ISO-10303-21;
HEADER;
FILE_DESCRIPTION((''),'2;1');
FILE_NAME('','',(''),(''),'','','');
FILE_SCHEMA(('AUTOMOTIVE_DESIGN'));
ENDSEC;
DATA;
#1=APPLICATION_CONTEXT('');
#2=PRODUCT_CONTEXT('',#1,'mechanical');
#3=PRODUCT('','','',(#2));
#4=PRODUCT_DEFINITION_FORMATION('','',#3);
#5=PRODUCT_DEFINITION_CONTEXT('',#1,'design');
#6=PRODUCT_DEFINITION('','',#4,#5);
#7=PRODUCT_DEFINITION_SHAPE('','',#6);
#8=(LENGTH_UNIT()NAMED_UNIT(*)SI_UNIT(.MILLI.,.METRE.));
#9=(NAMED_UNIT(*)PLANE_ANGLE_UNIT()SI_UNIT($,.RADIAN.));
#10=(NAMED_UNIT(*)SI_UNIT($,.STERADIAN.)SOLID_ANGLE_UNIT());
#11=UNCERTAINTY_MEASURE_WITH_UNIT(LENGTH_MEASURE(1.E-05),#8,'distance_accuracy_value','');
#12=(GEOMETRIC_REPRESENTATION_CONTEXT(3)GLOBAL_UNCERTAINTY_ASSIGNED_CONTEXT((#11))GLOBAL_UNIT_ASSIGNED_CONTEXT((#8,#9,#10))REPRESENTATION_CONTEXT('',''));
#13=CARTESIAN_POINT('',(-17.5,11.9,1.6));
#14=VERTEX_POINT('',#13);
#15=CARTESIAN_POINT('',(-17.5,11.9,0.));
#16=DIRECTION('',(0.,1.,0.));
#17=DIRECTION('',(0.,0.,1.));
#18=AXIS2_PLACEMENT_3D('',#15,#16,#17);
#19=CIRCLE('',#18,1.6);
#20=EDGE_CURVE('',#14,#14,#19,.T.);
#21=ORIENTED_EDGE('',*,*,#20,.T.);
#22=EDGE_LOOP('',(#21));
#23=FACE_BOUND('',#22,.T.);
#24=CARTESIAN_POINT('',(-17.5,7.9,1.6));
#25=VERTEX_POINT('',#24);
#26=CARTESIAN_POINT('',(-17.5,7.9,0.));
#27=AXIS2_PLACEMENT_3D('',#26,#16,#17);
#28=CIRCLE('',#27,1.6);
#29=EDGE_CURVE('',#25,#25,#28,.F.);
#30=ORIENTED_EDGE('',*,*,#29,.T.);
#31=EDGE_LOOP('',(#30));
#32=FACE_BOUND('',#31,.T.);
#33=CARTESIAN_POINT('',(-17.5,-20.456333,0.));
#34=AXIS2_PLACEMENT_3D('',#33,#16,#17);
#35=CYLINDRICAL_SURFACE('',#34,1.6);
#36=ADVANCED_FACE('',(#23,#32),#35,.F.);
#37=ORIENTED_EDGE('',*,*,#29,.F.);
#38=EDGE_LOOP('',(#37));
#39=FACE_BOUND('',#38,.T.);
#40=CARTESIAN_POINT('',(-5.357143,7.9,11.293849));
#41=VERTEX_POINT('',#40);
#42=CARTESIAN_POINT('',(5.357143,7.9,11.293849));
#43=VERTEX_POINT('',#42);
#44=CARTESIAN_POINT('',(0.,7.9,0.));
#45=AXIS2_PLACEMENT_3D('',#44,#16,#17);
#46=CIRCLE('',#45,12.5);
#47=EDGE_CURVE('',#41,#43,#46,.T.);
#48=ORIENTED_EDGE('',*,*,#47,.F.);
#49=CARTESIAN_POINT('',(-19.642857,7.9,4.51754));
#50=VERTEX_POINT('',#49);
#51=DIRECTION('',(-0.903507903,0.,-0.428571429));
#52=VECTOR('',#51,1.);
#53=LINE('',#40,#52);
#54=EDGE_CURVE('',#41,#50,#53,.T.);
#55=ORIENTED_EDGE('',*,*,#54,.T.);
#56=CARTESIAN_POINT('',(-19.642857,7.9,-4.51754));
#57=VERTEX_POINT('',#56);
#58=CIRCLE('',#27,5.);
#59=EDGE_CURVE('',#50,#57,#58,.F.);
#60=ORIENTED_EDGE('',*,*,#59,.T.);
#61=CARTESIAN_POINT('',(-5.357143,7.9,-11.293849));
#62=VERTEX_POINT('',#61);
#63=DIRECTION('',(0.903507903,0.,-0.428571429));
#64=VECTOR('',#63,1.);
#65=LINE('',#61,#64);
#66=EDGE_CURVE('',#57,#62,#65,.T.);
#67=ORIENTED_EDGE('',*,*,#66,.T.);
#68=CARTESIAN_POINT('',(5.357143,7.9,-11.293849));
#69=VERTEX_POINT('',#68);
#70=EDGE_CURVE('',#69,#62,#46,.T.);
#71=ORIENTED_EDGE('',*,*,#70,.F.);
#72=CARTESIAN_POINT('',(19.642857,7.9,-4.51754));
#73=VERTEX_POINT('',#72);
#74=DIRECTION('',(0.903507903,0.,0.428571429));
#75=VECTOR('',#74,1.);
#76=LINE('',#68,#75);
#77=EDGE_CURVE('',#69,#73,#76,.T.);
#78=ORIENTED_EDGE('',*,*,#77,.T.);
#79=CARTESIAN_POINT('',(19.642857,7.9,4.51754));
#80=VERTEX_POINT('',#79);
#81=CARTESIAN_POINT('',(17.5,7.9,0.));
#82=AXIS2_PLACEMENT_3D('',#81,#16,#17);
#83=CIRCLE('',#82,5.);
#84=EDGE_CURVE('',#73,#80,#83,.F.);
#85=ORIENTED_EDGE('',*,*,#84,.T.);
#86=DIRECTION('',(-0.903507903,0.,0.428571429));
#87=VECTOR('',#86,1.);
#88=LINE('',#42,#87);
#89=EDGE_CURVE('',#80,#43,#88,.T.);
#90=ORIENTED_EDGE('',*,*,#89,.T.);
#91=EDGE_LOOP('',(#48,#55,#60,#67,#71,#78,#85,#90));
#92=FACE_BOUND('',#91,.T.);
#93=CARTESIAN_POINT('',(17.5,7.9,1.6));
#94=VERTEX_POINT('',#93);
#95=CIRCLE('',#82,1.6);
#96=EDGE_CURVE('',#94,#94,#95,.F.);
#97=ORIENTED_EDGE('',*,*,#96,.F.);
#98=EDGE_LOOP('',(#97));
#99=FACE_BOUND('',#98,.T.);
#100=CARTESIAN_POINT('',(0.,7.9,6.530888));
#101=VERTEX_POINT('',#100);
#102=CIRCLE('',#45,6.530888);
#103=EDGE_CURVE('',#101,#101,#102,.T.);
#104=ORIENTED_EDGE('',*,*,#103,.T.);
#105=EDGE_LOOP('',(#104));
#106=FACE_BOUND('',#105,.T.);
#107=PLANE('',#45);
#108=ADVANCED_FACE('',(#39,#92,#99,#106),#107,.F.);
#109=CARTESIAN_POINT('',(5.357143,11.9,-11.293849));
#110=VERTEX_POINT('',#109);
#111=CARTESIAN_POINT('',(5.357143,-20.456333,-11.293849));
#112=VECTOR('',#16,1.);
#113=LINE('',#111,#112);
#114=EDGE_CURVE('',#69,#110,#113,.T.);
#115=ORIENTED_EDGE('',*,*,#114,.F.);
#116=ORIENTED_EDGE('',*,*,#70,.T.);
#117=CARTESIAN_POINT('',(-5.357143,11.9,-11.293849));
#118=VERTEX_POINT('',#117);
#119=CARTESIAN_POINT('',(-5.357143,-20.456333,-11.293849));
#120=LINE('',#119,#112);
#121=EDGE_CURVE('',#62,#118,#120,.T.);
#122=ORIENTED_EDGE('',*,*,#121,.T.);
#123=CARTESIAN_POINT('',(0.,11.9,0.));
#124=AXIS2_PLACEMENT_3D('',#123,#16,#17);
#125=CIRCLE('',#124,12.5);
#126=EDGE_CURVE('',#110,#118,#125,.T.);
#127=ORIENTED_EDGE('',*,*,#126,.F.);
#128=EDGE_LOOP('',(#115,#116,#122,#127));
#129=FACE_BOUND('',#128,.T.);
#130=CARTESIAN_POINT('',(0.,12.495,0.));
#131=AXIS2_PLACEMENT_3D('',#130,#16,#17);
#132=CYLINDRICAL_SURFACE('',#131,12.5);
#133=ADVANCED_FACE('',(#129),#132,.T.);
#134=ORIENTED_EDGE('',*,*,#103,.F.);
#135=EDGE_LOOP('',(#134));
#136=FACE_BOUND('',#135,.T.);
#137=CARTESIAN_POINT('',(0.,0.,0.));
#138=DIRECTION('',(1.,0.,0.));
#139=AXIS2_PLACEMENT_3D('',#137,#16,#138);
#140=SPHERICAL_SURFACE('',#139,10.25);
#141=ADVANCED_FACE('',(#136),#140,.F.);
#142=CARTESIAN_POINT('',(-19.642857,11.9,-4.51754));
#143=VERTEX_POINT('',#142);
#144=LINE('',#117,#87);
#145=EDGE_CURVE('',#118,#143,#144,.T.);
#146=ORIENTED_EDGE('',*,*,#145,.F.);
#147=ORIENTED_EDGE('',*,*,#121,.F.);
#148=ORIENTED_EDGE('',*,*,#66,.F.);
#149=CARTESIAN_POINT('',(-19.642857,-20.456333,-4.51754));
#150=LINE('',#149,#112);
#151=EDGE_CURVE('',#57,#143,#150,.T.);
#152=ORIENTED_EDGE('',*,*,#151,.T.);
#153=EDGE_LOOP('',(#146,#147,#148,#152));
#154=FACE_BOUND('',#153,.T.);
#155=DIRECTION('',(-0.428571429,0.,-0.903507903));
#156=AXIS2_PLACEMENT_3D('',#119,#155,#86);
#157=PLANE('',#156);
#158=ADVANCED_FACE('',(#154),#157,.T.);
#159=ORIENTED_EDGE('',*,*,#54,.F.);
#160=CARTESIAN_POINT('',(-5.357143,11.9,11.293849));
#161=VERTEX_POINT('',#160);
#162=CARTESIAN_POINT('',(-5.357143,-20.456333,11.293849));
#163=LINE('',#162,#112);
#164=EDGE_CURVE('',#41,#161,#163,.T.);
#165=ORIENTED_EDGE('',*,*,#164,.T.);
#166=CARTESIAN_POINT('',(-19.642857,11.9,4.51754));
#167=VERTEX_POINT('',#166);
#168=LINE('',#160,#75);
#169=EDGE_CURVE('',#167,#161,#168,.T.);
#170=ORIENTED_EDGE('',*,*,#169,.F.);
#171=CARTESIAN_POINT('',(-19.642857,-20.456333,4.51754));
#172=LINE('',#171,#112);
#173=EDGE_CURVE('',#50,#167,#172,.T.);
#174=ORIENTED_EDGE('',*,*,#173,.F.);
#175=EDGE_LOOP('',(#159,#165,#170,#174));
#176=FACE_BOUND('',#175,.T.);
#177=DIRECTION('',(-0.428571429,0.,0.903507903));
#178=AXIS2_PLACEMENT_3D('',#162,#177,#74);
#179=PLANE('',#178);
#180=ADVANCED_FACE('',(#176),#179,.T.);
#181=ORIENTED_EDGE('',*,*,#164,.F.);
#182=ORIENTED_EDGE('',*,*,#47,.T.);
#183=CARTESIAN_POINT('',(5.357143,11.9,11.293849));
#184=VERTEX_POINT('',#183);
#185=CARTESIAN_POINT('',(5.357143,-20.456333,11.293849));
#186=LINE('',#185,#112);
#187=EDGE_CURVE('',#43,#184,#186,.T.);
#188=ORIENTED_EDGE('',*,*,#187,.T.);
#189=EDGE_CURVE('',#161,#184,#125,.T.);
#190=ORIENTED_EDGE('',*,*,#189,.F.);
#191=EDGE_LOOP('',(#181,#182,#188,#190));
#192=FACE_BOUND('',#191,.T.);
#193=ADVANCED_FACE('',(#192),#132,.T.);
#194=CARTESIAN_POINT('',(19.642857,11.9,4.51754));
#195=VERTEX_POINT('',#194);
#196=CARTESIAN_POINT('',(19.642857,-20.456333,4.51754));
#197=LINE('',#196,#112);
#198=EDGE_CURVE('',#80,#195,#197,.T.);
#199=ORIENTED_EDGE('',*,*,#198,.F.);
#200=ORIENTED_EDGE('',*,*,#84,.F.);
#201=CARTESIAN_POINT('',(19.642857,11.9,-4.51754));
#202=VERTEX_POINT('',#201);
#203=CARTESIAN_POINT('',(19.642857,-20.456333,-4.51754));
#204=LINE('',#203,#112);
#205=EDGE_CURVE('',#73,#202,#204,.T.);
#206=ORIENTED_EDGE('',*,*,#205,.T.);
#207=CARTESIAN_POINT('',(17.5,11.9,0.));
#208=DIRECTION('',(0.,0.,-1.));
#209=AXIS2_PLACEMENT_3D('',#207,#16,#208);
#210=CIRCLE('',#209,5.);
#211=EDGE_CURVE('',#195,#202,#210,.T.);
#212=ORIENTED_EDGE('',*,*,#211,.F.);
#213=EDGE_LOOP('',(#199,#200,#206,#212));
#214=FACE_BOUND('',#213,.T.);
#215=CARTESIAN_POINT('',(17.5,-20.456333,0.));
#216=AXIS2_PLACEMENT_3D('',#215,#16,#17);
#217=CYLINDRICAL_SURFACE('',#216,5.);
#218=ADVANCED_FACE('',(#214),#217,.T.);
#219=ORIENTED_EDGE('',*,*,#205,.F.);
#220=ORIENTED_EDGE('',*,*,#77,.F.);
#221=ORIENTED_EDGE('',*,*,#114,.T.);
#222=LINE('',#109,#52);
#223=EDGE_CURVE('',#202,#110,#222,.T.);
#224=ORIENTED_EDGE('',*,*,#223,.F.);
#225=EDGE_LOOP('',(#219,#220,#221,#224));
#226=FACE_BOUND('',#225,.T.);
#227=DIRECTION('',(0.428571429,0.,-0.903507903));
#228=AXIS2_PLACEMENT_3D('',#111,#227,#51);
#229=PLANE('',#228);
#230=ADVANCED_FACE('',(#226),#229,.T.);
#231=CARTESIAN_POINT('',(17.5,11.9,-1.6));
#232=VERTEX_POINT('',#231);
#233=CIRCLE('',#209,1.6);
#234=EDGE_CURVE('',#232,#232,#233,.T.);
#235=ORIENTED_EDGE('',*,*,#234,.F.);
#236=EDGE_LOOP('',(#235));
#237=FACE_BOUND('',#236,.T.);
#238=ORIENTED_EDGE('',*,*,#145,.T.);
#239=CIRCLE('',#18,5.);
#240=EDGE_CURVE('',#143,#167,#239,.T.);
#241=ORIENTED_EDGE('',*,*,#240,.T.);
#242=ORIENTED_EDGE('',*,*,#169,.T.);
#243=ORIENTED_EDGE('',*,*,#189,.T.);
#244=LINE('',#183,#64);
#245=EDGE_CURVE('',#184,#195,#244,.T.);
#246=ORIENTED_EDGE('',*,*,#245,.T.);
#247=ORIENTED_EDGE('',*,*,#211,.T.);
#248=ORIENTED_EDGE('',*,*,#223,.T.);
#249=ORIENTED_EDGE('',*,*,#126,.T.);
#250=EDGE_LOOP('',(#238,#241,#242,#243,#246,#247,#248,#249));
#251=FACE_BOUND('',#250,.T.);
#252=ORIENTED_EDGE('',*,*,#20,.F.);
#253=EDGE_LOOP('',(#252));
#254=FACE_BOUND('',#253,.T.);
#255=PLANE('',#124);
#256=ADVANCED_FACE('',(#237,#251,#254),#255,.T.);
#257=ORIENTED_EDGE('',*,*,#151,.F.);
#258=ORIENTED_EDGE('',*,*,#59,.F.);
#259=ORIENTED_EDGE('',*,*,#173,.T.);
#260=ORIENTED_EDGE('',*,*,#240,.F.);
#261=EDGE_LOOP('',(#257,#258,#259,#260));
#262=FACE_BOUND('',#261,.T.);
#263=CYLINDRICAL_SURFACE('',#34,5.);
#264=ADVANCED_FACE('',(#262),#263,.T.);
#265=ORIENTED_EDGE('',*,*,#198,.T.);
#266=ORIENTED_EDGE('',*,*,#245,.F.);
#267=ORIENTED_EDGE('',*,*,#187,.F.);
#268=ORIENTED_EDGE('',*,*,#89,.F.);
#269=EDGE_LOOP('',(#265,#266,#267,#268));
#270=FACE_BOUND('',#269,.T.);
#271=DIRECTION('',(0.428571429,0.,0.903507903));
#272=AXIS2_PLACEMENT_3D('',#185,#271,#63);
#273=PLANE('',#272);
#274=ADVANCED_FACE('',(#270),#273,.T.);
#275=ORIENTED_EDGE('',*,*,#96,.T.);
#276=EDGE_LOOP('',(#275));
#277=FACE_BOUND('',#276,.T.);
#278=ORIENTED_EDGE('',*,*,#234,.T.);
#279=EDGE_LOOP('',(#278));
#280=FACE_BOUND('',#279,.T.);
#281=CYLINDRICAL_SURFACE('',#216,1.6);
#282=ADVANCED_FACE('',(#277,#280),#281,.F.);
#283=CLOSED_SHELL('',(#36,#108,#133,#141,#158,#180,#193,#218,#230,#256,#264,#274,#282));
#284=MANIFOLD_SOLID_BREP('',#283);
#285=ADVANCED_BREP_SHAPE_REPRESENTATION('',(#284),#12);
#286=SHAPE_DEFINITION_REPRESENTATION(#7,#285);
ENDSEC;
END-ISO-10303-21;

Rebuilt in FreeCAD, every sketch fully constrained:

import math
import FreeCAD as App
import Part
import Sketcher
from FreeCAD import Vector

doc = App.newDocument("Part")
body = doc.addObject("PartDesign::Body", "Body")

sketch1 = body.newObject("Sketcher::SketchObject", "Sketch")
sketch1.AttachmentSupport = (doc.getObject("XY_Plane"), [""])
sketch1.MapMode = "FlatFace"
sketch1.addGeometry(Part.ArcOfCircle(Part.Circle(Vector(0, 0, 0), Vector(0, 0, 1), 10.3), math.radians(50), math.radians(90)), False)
sketch1.addGeometry(Part.LineSegment(Vector(6.5, 7.9, 0), Vector(12.5, 7.9, 0)), False)
sketch1.addGeometry(Part.LineSegment(Vector(12.5, 7.9, 0), Vector(12.5, 11.9, 0)), False)
sketch1.addGeometry(Part.LineSegment(Vector(12.5, 11.9, 0), Vector(0, 11.9, 0)), False)
sketch1.addGeometry(Part.LineSegment(Vector(0, 11.9, 0), Vector(0, 10.2, 0)), False)
sketch1.addConstraint(Sketcher.Constraint("Coincident", 0, 1, 1, 1))
sketch1.addConstraint(Sketcher.Constraint("Coincident", 1, 2, 2, 1))
sketch1.addConstraint(Sketcher.Constraint("Coincident", 2, 2, 3, 1))
sketch1.addConstraint(Sketcher.Constraint("Coincident", 3, 2, 4, 1))
sketch1.addConstraint(Sketcher.Constraint("Coincident", 4, 2, 0, 2))
sketch1.addConstraint(Sketcher.Constraint("Horizontal", 1))
sketch1.addConstraint(Sketcher.Constraint("Vertical", 2))
sketch1.addConstraint(Sketcher.Constraint("Horizontal", 3))
sketch1.addConstraint(Sketcher.Constraint("Vertical", 4))
sketch1.addConstraint(Sketcher.Constraint("Coincident", 0, 3, -1, 1))
sketch1.addConstraint(Sketcher.Constraint("PointOnObject", 3, 2, -2))
sketch1.addConstraint(Sketcher.Constraint("DistanceY", 2, 1, 2, 2, 4.0))
sketch1.addConstraint(Sketcher.Constraint("Radius", 0, 10.25))
sketch1.addConstraint(Sketcher.Constraint("DistanceX", 3, 2, 3, 1, 12.5))
sketch1.addConstraint(Sketcher.Constraint("DistanceY", 4, 2, 4, 1, 1.65))
revolution = body.newObject("PartDesign::Revolution", "Revolution")
revolution.Profile = sketch1
revolution.ReferenceAxis = (sketch1, ["V_Axis"])
revolution.Angle = 360

sketch2 = body.newObject("Sketcher::SketchObject", "Sketch001")
sketch2.AttachmentSupport = (doc.getObject("XZ_Plane"), [""])
sketch2.MapMode = "FlatFace"
sketch2.AttachmentOffset = App.Placement(Vector(0, 0, -11.9), App.Rotation())
sketch2.addGeometry(Part.LineSegment(Vector(-5.4, -11.3, 0), Vector(-19.6, -4.5, 0)), False)
sketch2.addGeometry(Part.ArcOfCircle(Part.Circle(Vector(-17.5, 0, 0), Vector(0, 0, 1), 5), math.radians(115), math.radians(245)), False)
sketch2.addGeometry(Part.LineSegment(Vector(-19.6, 4.5, 0), Vector(-5.4, 11.3, 0)), False)
sketch2.addGeometry(Part.ArcOfCircle(Part.Circle(Vector(0, 0, 0), Vector(0, 0, 1), 12.5), math.radians(115), math.radians(245)), False)
sketch2.addGeometry(Part.Circle(Vector(-17.5, 0, 0), Vector(0, 0, 1), 1.6), False)
sketch2.addGeometry(Part.LineSegment(Vector(5.4, 11.3, 0), Vector(19.6, 4.5, 0)), False)
sketch2.addGeometry(Part.ArcOfCircle(Part.Circle(Vector(17.5, 0, 0), Vector(0, 0, 1), 5), math.radians(-65), math.radians(65)), False)
sketch2.addGeometry(Part.LineSegment(Vector(19.6, -4.5, 0), Vector(5.4, -11.3, 0)), False)
sketch2.addGeometry(Part.ArcOfCircle(Part.Circle(Vector(0, 0, 0), Vector(0, 0, 1), 12.5), math.radians(-65), math.radians(65)), False)
sketch2.addGeometry(Part.Circle(Vector(17.5, 0, 0), Vector(0, 0, 1), 1.6), False)
sketch2.addConstraint(Sketcher.Constraint("Tangent", 0, 2, 1, 2))
sketch2.addConstraint(Sketcher.Constraint("Tangent", 1, 1, 2, 1))
sketch2.addConstraint(Sketcher.Constraint("Tangent", 2, 2, 3, 1))
sketch2.addConstraint(Sketcher.Constraint("Tangent", 3, 2, 0, 1))
sketch2.addConstraint(Sketcher.Constraint("Tangent", 5, 2, 6, 2))
sketch2.addConstraint(Sketcher.Constraint("Tangent", 6, 1, 7, 1))
sketch2.addConstraint(Sketcher.Constraint("Tangent", 7, 2, 8, 1))
sketch2.addConstraint(Sketcher.Constraint("Tangent", 8, 2, 5, 1))
sketch2.addConstraint(Sketcher.Constraint("Coincident", 3, 3, -1, 1))
sketch2.addConstraint(Sketcher.Constraint("Coincident", 8, 3, -1, 1))
sketch2.addConstraint(Sketcher.Constraint("Coincident", 4, 3, 1, 3))
sketch2.addConstraint(Sketcher.Constraint("Coincident", 9, 3, 6, 3))
sketch2.addConstraint(Sketcher.Constraint("Equal", 1, 6))
sketch2.addConstraint(Sketcher.Constraint("Equal", 3, 8))
sketch2.addConstraint(Sketcher.Constraint("Equal", 4, 9))
sketch2.addConstraint(Sketcher.Constraint("Symmetric", 1, 3, 6, 3, -1, 1))
sketch2.addConstraint(Sketcher.Constraint("PointOnObject", 1, 3, -1))
sketch2.addConstraint(Sketcher.Constraint("Radius", 1, 5.0))
sketch2.addConstraint(Sketcher.Constraint("Diameter", 4, 3.2))
sketch2.addConstraint(Sketcher.Constraint("Radius", 3, 12.5))
sketch2.addConstraint(Sketcher.Constraint("DistanceX", 1, 3, 6, 3, 35.0))
pad1 = body.newObject("PartDesign::Pad", "Pad")
pad1.Profile = sketch2
pad1.Length = 4

doc.recompute()
